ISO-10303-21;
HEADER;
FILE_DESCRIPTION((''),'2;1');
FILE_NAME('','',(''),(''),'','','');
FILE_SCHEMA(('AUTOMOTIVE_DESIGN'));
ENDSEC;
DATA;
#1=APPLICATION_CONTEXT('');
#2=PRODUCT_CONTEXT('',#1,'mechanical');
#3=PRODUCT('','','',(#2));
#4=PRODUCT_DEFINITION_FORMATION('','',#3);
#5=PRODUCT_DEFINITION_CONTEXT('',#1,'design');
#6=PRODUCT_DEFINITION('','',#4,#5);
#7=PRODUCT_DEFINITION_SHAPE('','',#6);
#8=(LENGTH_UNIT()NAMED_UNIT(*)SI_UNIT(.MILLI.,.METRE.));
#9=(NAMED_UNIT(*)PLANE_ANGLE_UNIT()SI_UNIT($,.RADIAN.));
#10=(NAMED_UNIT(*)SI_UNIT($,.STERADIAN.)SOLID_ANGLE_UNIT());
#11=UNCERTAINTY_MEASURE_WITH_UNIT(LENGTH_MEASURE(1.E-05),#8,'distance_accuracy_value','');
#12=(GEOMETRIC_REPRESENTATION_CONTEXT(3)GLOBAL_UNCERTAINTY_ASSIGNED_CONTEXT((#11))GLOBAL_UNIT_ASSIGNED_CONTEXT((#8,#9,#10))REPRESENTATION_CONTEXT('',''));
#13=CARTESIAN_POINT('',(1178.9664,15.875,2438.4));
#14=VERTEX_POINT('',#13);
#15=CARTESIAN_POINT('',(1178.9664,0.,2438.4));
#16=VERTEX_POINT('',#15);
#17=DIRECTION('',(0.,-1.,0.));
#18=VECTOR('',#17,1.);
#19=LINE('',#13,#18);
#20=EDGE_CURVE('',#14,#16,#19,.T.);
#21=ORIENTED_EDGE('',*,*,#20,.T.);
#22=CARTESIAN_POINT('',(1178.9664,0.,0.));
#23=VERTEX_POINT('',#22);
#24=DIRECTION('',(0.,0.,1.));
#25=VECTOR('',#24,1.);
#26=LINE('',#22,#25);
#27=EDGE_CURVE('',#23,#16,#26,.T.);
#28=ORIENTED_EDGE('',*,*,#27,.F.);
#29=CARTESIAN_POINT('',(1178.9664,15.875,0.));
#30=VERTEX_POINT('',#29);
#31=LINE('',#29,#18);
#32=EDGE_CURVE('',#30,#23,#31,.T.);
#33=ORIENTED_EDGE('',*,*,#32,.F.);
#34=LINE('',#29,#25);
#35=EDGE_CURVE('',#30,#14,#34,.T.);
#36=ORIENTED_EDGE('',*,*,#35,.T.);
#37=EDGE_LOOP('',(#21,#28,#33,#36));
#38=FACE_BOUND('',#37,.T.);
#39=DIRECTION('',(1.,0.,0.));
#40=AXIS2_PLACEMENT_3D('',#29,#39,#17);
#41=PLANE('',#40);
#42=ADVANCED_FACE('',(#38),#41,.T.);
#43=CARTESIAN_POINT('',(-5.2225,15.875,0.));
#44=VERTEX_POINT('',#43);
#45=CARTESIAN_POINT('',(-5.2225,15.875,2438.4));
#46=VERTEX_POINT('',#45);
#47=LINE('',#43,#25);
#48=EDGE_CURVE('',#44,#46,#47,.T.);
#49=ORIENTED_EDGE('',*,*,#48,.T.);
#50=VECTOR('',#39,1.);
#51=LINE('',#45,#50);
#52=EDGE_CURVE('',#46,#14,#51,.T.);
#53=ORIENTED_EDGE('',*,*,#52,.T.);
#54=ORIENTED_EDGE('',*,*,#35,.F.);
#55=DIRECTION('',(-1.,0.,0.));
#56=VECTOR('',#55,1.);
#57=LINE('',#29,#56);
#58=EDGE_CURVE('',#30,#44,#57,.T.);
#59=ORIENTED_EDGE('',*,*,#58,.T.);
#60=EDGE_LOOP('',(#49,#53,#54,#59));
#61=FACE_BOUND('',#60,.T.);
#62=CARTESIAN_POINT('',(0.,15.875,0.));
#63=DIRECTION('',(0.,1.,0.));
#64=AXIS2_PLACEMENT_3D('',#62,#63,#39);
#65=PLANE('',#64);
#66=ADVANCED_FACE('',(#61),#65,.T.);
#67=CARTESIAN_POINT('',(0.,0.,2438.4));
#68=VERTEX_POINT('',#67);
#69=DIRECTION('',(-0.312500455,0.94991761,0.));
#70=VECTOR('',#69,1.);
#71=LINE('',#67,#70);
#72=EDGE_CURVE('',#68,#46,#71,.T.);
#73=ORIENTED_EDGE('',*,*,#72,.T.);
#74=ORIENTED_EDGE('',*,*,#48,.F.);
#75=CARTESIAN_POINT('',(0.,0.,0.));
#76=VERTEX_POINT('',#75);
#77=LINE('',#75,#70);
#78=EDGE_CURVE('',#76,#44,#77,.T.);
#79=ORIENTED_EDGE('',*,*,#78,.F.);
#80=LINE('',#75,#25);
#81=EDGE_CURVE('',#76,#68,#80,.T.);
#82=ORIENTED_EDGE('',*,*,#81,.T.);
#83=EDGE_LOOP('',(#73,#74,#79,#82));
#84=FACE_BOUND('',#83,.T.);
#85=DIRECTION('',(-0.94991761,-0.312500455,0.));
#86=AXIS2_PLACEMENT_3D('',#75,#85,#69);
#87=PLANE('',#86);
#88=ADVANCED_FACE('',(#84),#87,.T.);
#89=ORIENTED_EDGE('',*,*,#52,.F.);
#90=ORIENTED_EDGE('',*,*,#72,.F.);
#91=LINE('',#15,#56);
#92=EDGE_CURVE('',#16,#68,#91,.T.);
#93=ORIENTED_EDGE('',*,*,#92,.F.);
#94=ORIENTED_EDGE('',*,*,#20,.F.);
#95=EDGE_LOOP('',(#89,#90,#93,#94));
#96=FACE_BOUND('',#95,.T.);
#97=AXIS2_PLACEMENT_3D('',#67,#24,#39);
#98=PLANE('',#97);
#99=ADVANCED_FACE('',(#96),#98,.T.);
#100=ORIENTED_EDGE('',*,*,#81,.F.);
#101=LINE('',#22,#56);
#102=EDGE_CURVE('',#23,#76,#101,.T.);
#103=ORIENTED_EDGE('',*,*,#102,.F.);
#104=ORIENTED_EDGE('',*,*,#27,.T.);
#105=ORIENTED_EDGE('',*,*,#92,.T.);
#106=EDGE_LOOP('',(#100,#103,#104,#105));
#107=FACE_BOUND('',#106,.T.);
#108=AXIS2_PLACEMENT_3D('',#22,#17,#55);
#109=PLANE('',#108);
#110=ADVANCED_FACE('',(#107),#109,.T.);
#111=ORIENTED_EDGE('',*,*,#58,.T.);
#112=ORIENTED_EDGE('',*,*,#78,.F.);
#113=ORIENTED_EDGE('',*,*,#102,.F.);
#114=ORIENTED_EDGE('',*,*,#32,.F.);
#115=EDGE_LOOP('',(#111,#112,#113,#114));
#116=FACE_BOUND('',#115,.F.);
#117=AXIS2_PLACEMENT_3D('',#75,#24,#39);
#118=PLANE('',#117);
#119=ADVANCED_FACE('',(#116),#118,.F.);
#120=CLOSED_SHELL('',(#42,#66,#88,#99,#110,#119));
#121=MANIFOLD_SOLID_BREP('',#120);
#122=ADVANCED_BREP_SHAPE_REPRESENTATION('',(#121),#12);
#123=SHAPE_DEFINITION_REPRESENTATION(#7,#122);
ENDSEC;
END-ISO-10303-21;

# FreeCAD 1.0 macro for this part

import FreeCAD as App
import Part
import Sketcher
from FreeCAD import Vector
Q = App.Units.Quantity

doc = App.newDocument("Part")
params = doc.addObject("Spreadsheet::Sheet", "Params")
for row, (alias, value) in enumerate([
    ("sketch1_width", "46.416 in"),
    ("sketch1_height", "0.625 in"),
    ("pad1_length", "96 in"),
], start=1):
    params.set(f"A{row}", alias)
    params.set(f"B{row}", "=" + value)
    params.setAlias(f"B{row}", alias)

body = doc.addObject("PartDesign::Body", "Body")

# Sketch on XY plane
sketch1 = body.newObject("Sketcher::SketchObject", "Sketch")
sketch1.AttachmentSupport = (doc.getObject("XY_Plane"), [""])
sketch1.MapMode = "FlatFace"
sketch1.addGeometry([
    Part.LineSegment(Vector(1179, 16, 0), Vector(-5, 16, 0)),
    Part.LineSegment(Vector(-5, 16, 0), Vector(0, 0, 0)),
    Part.LineSegment(Vector(0, 0, 0), Vector(1179, 0, 0)),
    Part.LineSegment(Vector(1179, 0, 0), Vector(1179, 16, 0)),
], False)
sketch1.addConstraint([
    Sketcher.Constraint("Coincident", 0, 2, 1, 1),
    Sketcher.Constraint("Coincident", 1, 2, 2, 1),
    Sketcher.Constraint("Coincident", 2, 2, 3, 1),
    Sketcher.Constraint("Coincident", 3, 2, 0, 1),
    Sketcher.Constraint("Horizontal", 0),
    Sketcher.Constraint("Horizontal", 2),
    Sketcher.Constraint("Vertical", 3),
    Sketcher.Constraint("Coincident", 1, 2, -1, 1),
    Sketcher.Constraint("DistanceX", 2, 1, 2, 2, Q("46.416 in")),
    Sketcher.Constraint("DistanceY", 3, 1, 3, 2, Q("0.625 in")),
    Sketcher.Constraint("Angle", 1, Q("-71.79 deg")),
])
sketch1.setExpression("Constraints[8]", "Params.sketch1_width")
sketch1.setExpression("Constraints[9]", "Params.sketch1_height")
pad1 = body.newObject("PartDesign::Pad", "Pad")
pad1.Profile = sketch1
pad1.setExpression("Length", "Params.pad1_length")

doc.recompute()
